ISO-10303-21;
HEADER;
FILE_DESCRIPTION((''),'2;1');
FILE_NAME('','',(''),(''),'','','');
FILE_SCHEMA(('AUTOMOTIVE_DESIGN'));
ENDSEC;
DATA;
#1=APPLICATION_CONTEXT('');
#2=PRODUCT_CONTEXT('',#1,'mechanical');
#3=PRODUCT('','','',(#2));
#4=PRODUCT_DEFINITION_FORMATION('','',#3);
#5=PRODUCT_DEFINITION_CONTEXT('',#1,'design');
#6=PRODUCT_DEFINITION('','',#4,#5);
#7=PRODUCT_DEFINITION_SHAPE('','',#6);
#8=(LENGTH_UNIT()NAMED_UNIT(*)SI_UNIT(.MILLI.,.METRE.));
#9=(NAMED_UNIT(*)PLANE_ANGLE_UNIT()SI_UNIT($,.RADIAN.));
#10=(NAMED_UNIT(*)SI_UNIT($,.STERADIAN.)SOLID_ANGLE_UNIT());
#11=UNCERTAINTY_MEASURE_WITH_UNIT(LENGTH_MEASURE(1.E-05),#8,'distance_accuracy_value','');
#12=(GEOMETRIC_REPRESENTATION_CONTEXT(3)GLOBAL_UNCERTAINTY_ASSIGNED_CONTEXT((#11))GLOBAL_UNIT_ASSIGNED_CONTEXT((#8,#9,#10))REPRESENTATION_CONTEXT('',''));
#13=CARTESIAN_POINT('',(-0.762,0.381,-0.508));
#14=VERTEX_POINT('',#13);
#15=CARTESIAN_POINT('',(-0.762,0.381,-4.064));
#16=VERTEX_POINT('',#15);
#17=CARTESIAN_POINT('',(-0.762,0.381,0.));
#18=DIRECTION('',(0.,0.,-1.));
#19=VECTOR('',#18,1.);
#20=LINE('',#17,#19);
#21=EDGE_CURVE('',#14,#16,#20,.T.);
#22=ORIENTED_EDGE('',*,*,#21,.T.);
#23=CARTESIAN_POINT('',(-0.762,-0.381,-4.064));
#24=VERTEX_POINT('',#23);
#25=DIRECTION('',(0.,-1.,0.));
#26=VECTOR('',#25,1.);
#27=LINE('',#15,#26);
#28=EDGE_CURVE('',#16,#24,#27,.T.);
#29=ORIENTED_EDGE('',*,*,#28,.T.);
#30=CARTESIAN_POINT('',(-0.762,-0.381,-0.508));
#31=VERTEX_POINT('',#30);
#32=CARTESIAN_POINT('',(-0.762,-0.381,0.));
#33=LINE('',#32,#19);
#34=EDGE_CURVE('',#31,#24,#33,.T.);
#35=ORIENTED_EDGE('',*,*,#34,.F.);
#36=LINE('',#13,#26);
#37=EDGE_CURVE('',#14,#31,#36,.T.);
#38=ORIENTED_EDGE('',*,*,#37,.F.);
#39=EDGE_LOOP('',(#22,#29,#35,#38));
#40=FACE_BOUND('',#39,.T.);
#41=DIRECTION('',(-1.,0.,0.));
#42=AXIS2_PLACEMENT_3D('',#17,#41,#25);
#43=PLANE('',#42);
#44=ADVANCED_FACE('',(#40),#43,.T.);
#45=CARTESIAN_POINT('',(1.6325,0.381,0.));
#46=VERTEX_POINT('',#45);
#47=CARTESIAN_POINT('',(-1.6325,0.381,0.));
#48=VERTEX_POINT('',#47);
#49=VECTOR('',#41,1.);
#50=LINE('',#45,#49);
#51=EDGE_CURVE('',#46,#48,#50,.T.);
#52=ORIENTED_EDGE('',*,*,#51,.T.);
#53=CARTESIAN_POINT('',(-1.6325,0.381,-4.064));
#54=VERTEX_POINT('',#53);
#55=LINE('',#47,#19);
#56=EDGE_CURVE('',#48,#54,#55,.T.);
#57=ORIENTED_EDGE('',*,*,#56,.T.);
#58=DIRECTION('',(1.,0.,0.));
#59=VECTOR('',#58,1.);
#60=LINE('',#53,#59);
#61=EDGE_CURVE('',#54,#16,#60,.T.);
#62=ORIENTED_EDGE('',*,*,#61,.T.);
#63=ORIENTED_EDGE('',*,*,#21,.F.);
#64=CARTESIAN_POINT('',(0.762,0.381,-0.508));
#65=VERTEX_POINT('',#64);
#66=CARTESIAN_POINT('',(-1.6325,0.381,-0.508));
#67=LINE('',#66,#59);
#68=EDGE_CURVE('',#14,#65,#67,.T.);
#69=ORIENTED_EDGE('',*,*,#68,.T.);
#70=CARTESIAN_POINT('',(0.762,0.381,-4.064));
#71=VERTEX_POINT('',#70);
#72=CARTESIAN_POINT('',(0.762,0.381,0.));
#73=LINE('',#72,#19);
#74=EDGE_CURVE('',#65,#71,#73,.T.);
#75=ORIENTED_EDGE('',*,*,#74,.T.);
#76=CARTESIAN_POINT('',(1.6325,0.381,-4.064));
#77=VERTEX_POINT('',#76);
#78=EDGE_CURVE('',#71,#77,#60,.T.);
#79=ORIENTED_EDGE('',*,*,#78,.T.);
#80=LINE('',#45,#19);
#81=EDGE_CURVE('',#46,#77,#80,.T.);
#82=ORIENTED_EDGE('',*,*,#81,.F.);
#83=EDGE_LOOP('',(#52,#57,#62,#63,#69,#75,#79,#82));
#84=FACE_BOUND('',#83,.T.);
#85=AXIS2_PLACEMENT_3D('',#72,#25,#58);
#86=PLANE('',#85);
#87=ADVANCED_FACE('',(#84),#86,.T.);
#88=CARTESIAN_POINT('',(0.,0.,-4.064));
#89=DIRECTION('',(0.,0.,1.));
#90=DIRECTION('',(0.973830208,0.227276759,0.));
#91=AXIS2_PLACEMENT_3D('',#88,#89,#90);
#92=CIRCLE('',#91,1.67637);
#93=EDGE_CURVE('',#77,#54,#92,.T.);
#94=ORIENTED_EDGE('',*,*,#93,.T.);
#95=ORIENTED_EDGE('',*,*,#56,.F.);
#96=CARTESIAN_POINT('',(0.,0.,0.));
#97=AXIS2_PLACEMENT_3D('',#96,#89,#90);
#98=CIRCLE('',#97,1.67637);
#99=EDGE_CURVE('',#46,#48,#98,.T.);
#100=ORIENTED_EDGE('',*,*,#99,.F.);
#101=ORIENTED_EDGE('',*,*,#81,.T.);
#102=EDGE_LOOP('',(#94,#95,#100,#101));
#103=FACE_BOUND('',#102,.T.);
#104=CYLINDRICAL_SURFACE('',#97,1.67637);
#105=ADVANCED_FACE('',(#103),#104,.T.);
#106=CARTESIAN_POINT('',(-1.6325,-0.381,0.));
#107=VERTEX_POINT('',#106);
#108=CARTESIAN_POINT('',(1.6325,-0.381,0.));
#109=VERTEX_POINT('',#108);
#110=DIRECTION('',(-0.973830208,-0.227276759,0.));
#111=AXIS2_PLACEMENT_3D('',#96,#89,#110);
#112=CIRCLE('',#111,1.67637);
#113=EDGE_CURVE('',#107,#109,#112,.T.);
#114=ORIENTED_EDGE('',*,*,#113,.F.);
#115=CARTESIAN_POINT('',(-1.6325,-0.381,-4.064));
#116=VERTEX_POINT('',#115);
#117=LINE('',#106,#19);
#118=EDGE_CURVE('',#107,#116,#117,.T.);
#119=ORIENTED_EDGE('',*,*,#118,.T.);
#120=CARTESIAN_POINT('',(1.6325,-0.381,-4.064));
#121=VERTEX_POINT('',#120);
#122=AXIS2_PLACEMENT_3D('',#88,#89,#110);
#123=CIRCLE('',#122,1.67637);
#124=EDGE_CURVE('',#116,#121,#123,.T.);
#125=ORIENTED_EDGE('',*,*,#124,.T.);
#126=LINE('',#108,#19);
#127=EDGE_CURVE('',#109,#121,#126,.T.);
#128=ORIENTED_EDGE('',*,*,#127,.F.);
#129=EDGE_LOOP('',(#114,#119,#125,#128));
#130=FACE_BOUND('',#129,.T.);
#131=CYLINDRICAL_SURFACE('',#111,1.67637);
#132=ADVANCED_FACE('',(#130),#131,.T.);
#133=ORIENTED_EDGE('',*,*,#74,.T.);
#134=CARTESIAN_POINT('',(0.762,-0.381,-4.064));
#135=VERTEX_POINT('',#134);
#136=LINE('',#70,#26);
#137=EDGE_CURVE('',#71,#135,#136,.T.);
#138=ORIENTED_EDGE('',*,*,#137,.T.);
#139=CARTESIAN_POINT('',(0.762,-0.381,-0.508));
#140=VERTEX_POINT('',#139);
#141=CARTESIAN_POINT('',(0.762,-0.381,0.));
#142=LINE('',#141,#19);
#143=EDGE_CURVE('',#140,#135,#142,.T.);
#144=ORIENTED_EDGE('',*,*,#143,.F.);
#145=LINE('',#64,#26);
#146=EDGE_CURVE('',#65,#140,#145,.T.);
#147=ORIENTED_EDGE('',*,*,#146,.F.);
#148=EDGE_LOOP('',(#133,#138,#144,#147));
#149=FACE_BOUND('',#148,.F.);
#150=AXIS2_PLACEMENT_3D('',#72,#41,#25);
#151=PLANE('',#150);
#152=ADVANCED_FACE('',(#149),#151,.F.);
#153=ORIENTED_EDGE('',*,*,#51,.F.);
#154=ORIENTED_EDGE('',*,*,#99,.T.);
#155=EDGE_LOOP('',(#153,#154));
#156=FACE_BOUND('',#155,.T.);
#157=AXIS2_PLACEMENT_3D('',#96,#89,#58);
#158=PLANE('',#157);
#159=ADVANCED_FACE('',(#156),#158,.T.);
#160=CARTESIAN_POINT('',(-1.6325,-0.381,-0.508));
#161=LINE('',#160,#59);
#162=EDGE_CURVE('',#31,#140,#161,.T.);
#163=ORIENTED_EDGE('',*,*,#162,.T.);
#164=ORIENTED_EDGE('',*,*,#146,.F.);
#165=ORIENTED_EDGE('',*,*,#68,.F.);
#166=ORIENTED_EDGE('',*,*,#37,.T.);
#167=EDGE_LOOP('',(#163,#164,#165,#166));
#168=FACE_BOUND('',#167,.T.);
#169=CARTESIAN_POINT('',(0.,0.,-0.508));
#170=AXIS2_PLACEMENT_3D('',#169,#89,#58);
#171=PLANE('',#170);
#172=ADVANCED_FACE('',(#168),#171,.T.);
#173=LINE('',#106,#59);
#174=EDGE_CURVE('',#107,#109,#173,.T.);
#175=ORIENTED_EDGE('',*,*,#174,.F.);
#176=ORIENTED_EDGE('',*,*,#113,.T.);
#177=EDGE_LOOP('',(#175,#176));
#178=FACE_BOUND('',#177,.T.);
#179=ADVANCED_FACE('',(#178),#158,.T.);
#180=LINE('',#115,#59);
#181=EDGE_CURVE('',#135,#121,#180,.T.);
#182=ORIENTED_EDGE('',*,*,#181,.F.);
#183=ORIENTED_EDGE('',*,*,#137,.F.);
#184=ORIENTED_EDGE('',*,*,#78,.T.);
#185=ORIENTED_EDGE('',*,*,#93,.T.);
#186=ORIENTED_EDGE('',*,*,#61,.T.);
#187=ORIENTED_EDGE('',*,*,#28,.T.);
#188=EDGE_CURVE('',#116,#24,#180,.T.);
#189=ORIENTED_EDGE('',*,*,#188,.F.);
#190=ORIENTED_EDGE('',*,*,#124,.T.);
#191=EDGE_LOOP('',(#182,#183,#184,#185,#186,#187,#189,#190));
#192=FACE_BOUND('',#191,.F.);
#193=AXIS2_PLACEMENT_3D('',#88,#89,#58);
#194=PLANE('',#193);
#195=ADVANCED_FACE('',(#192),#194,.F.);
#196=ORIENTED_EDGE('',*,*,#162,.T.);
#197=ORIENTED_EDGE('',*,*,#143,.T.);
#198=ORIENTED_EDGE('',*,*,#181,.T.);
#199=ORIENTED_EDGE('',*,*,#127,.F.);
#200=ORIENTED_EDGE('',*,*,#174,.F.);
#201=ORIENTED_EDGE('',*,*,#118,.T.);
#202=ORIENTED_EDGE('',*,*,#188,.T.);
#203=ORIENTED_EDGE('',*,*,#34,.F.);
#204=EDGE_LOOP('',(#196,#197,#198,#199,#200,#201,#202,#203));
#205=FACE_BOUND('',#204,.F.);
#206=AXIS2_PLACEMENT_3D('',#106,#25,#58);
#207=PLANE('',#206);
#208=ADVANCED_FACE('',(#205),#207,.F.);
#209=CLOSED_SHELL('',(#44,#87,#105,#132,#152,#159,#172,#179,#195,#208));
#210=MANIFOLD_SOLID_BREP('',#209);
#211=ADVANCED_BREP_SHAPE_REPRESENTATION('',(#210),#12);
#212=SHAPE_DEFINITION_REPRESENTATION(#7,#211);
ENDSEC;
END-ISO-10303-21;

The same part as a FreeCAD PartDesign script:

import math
import FreeCAD as App
import Part
import Sketcher
Q = App.Units.Quantity

doc = App.newDocument("Part")
params = doc.addObject("Spreadsheet::Sheet", "Params")
for row, (alias, value) in enumerate([
    ("sketch1_radius", "0.066 in"),
    ("sketch1_height", "0.03 in"),
    ("pad1_length", "0.16 in"),
    ("sketch2_width", "0.06 in"),
    ("sketch2_height", "0.03 in"),
    ("pocket1_length", "0.02 in"),
], start=1):
    params.set(f"A{row}", alias)
    params.set(f"B{row}", "=" + value)
    params.setAlias(f"B{row}", alias)

body = doc.addObject("PartDesign::Body", "Body")

# Sketch on XY plane
sketch1 = body.newObject("Sketcher::SketchObject", "Sketch")
sketch1.AttachmentSupport = (doc.getObject("XY_Plane"), [""])
sketch1.MapMode = "FlatFace"
sketch1.addGeometry([
    Part.ArcOfCircle(Part.Circle(App.Vector(0, 0, 0), App.Vector(0, 0, 1), 1.7), math.radians(13), math.radians(167)),  # 0
    Part.LineSegment(App.Vector(-1.6, 0.4, 0), App.Vector(-0.8, 0.4, 0)),  # 1
    Part.LineSegment(App.Vector(-0.8, 0.4, 0), App.Vector(-0.8, -0.4, 0)),  # 2
    Part.LineSegment(App.Vector(-0.8, -0.4, 0), App.Vector(-1.6, -0.4, 0)),  # 3
    Part.ArcOfCircle(Part.Circle(App.Vector(0, 0, 0), App.Vector(0, 0, 1), 1.7), math.radians(-167), math.radians(-13)),  # 4
    Part.LineSegment(App.Vector(1.6, -0.4, 0), App.Vector(0.8, -0.4, 0)),  # 5
    Part.LineSegment(App.Vector(0.8, -0.4, 0), App.Vector(0.8, 0.4, 0)),  # 6
    Part.LineSegment(App.Vector(0.8, 0.4, 0), App.Vector(1.6, 0.4, 0)),  # 7
], False)
sketch1.addConstraint([
    Sketcher.Constraint("Coincident", 0, 2, 1, 1),
    Sketcher.Constraint("Coincident", 1, 2, 2, 1),
    Sketcher.Constraint("Coincident", 2, 2, 3, 1),
    Sketcher.Constraint("Coincident", 3, 2, 4, 1),
    Sketcher.Constraint("Coincident", 4, 2, 5, 1),
    Sketcher.Constraint("Coincident", 5, 2, 6, 1),
    Sketcher.Constraint("Coincident", 6, 2, 7, 1),
    Sketcher.Constraint("Coincident", 7, 2, 0, 1),
    Sketcher.Constraint("Horizontal", 1),
    Sketcher.Constraint("Vertical", 2),
    Sketcher.Constraint("Horizontal", 3),
    Sketcher.Constraint("Horizontal", 5),
    Sketcher.Constraint("Vertical", 6),
    Sketcher.Constraint("Horizontal", 7),
    Sketcher.Constraint("Coincident", 0, 3, -1, 1),
    Sketcher.Constraint("Coincident", 4, 3, -1, 1),
    Sketcher.Constraint("Equal", 0, 4),
    Sketcher.Constraint("Symmetric", 1, 2, 5, 2, -1, 1),
    Sketcher.Constraint("Horizontal", 3, 2, 4, 2),
    Sketcher.Constraint("Horizontal", 1, 2, 6, 2),
    Sketcher.Constraint("Radius", 0, Q("0.066 in")),
    Sketcher.Constraint("DistanceY", 2, 2, 2, 1, Q("0.03 in")),
    Sketcher.Constraint("DistanceX", 1, 2, -1, 1, Q("0.03 in")),
])
sketch1.setExpression("Constraints[20]", "Params.sketch1_radius")
sketch1.setExpression("Constraints[21]", "Params.sketch1_height")
pad1 = body.newObject("PartDesign::Pad", "Pad")
pad1.Profile = sketch1
pad1.setExpression("Length", "Params.pad1_length")
pad1.Reversed = True

# Sketch on XY plane
sketch2 = body.newObject("Sketcher::SketchObject", "Sketch001")
sketch2.AttachmentSupport = (doc.getObject("XY_Plane"), [""])
sketch2.MapMode = "FlatFace"
sketch2.addGeometry([
    Part.LineSegment(App.Vector(0.8, 0.4, 0), App.Vector(-0.8, 0.4, 0)),
    Part.LineSegment(App.Vector(-0.8, 0.4, 0), App.Vector(-0.8, -0.4, 0)),
    Part.LineSegment(App.Vector(-0.8, -0.4, 0), App.Vector(0.8, -0.4, 0)),
    Part.LineSegment(App.Vector(0.8, -0.4, 0), App.Vector(0.8, 0.4, 0)),
], False)
sketch2.addConstraint([
    Sketcher.Constraint("Coincident", 0, 2, 1, 1),
    Sketcher.Constraint("Coincident", 1, 2, 2, 1),
    Sketcher.Constraint("Coincident", 2, 2, 3, 1),
    Sketcher.Constraint("Coincident", 3, 2, 0, 1),
    Sketcher.Constraint("Horizontal", 0),
    Sketcher.Constraint("Vertical", 1),
    Sketcher.Constraint("Horizontal", 2),
    Sketcher.Constraint("Vertical", 3),
    Sketcher.Constraint("Symmetric", 0, 2, 2, 2, -1, 1),
    Sketcher.Constraint("DistanceX", 0, 2, 0, 1, Q("0.06 in")),
    Sketcher.Constraint("DistanceY", 1, 2, 1, 1, Q("0.03 in")),
])
sketch2.setExpression("Constraints[9]", "Params.sketch2_width")
sketch2.setExpression("Constraints[10]", "Params.sketch2_height")
pocket1 = body.newObject("PartDesign::Pocket", "Pocket")
pocket1.Profile = sketch2
pocket1.setExpression("Length", "Params.pocket1_length")

doc.recompute()
